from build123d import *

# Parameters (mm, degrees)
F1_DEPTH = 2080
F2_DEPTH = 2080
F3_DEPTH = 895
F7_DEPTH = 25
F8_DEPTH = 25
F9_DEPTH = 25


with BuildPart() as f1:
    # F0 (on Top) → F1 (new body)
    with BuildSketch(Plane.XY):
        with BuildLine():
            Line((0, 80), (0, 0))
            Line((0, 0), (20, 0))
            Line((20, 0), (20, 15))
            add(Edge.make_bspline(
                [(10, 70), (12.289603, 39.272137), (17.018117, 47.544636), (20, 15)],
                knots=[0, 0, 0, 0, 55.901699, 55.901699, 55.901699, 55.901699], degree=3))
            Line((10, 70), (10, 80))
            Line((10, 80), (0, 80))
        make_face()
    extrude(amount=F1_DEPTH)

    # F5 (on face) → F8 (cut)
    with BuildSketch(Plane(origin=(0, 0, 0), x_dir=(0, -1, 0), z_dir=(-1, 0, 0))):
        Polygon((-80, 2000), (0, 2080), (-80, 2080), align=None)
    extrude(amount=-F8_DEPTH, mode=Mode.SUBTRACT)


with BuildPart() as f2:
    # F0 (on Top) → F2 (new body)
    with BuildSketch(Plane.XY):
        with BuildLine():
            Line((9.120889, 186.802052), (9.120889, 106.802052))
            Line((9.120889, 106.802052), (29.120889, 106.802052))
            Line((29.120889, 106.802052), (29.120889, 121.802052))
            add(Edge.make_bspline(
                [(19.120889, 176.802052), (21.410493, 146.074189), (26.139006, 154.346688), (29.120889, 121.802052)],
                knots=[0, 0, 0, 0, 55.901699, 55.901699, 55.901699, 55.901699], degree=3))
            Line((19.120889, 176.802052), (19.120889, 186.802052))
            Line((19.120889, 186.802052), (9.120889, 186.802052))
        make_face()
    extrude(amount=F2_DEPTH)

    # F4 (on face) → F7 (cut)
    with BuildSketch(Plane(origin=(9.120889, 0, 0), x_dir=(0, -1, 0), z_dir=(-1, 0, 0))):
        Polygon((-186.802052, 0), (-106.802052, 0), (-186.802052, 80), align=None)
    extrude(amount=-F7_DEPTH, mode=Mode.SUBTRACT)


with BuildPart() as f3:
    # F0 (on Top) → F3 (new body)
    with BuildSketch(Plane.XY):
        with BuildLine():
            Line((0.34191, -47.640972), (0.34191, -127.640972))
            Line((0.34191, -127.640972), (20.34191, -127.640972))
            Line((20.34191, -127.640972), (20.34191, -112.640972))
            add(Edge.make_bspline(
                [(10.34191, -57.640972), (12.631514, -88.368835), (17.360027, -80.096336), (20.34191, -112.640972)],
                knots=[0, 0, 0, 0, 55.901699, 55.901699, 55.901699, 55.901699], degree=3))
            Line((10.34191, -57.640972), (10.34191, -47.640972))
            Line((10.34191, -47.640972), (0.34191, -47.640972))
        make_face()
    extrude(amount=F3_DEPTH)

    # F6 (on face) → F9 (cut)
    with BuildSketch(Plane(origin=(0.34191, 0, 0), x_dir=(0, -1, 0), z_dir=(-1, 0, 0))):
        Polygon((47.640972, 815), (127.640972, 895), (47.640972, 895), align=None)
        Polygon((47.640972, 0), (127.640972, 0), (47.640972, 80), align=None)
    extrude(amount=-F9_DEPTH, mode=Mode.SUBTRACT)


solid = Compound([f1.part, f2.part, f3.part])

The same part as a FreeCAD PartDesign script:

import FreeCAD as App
import Part
import Sketcher

doc = App.newDocument("Part")
body = doc.addObject("PartDesign::Body", "Body")

# Sketch on XY plane
sketch1 = doc.addObject("Sketcher::SketchObject", "Sketch")
body.addObject(sketch1)
sketch1.AttachmentSupport = (doc.XY_Plane, [""])
sketch1.MapMode = "FlatFace"
sketch1.addGeometry(Part.LineSegment(App.Vector(0, 80, 0), App.Vector(0, 0, 0)), False)
sketch1.addGeometry(Part.LineSegment(App.Vector(0, 0, 0), App.Vector(20, 0, 0)), False)
sketch1.addGeometry(Part.LineSegment(App.Vector(20, 0, 0), App.Vector(20, 15, 0)), False)
sketch1.addGeometry(Part.BSplineCurve([App.Vector(10, 70, 0), App.Vector(12.289603, 39.272137, 0), App.Vector(17.018117, 47.544636, 0), App.Vector(20, 15, 0)], [4, 4], [0, 55.901699], False, 3, [1, 1, 1, 1], False), False)
sketch1.addGeometry(Part.LineSegment(App.Vector(10, 70, 0), App.Vector(10, 80, 0)), False)
sketch1.addGeometry(Part.LineSegment(App.Vector(10, 80, 0), App.Vector(0, 80, 0)), False)
sketch1.addConstraint(Sketcher.Constraint("Block", 3))
sketch1.addConstraint(Sketcher.Constraint("Coincident", 0, 2, 1, 1))
sketch1.addConstraint(Sketcher.Constraint("Coincident", 1, 2, 2, 1))
sketch1.addConstraint(Sketcher.Constraint("Coincident", 2, 2, 3, 2))
sketch1.addConstraint(Sketcher.Constraint("Coincident", 3, 1, 4, 1))
sketch1.addConstraint(Sketcher.Constraint("Coincident", 4, 2, 5, 1))
sketch1.addConstraint(Sketcher.Constraint("Coincident", 5, 2, 0, 1))
sketch1.addConstraint(Sketcher.Constraint("Vertical", 0))
sketch1.addConstraint(Sketcher.Constraint("Horizontal", 1))
sketch1.addConstraint(Sketcher.Constraint("Vertical", 2))
sketch1.addConstraint(Sketcher.Constraint("Vertical", 4))
sketch1.addConstraint(Sketcher.Constraint("Horizontal", 5))
sketch1.addConstraint(Sketcher.Constraint("Coincident", 0, 2, -1, 1))
sketch1.addConstraint(Sketcher.Constraint("DistanceY", 0, 2, 0, 1, 80.0))
pad1 = doc.addObject("PartDesign::Pad", "Pad")
body.addObject(pad1)
pad1.Profile = sketch1
pad1.Length = 2080

# Sketch on YZ plane
sketch2 = doc.addObject("Sketcher::SketchObject", "Sketch001")
body.addObject(sketch2)
sketch2.AttachmentSupport = (doc.YZ_Plane, [""])
sketch2.MapMode = "FlatFace"
sketch2.addGeometry(Part.LineSegment(App.Vector(80, 2000, 0), App.Vector(0, 2080, 0)), False)
sketch2.addGeometry(Part.LineSegment(App.Vector(0, 2080, 0), App.Vector(80, 2080, 0)), False)
sketch2.addGeometry(Part.LineSegment(App.Vector(80, 2080, 0), App.Vector(80, 2000, 0)), False)
sketch2.addConstraint(Sketcher.Constraint("Coincident", 0, 2, 1, 1))
sketch2.addConstraint(Sketcher.Constraint("Coincident", 1, 2, 2, 1))
sketch2.addConstraint(Sketcher.Constraint("Coincident", 2, 2, 0, 1))
sketch2.addConstraint(Sketcher.Constraint("Horizontal", 1))
sketch2.addConstraint(Sketcher.Constraint("Vertical", 2))
sketch2.addConstraint(Sketcher.Constraint("PointOnObject", 0, 2, -2))
sketch2.addConstraint(Sketcher.Constraint("Equal", 1, 2))
sketch2.addConstraint(Sketcher.Constraint("DistanceX", 1, 1, 1, 2, 80.0))
sketch2.addConstraint(Sketcher.Constraint("DistanceY", -1, 1, 0, 2, 2080.0))
pocket1 = doc.addObject("PartDesign::Pocket", "Pocket")
body.addObject(pocket1)
pocket1.Profile = sketch2
pocket1.Length = 25
pocket1.Reversed = True
body2 = doc.addObject("PartDesign::Body", "Body001")

# Sketch on XY plane
sketch3 = doc.addObject("Sketcher::SketchObject", "Sketch002")
body2.addObject(sketch3)
sketch3.AttachmentSupport = (doc.getObject("XY_Plane001"), [""])
sketch3.MapMode = "FlatFace"
sketch3.addGeometry(Part.LineSegment(App.Vector(9.120889, 186.802052, 0), App.Vector(9.120889, 106.802052, 0)), False)
sketch3.addGeometry(Part.LineSegment(App.Vector(9.120889, 106.802052, 0), App.Vector(29.120889, 106.802052, 0)), False)
sketch3.addGeometry(Part.LineSegment(App.Vector(29.120889, 106.802052, 0), App.Vector(29.120889, 121.802052, 0)), False)
sketch3.addGeometry(Part.BSplineCurve([App.Vector(19.120889, 176.802052, 0), App.Vector(21.410493, 146.074189, 0), App.Vector(26.139006, 154.346688, 0), App.Vector(29.120889, 121.802052, 0)], [4, 4], [0, 55.901699], False, 3, [1, 1, 1, 1], False), False)
sketch3.addGeometry(Part.LineSegment(App.Vector(19.120889, 176.802052, 0), App.Vector(19.120889, 186.802052, 0)), False)
sketch3.addGeometry(Part.LineSegment(App.Vector(19.120889, 186.802052, 0), App.Vector(9.120889, 186.802052, 0)), False)
sketch3.addConstraint(Sketcher.Constraint("Block", 3))
sketch3.addConstraint(Sketcher.Constraint("Coincident", 0, 2, 1, 1))
sketch3.addConstraint(Sketcher.Constraint("Coincident", 1, 2, 2, 1))
sketch3.addConstraint(Sketcher.Constraint("Coincident", 2, 2, 3, 2))
sketch3.addConstraint(Sketcher.Constraint("Coincident", 3, 1, 4, 1))
sketch3.addConstraint(Sketcher.Constraint("Coincident", 4, 2, 5, 1))
sketch3.addConstraint(Sketcher.Constraint("Coincident", 5, 2, 0, 1))
sketch3.addConstraint(Sketcher.Constraint("Vertical", 0))
sketch3.addConstraint(Sketcher.Constraint("Horizontal", 1))
sketch3.addConstraint(Sketcher.Constraint("Vertical", 2))
sketch3.addConstraint(Sketcher.Constraint("Vertical", 4))
sketch3.addConstraint(Sketcher.Constraint("Horizontal", 5))
sketch3.addConstraint(Sketcher.Constraint("DistanceX", 1, 1, 1, 2, 20.0))
sketch3.addConstraint(Sketcher.Constraint("DistanceY", 0, 2, 0, 1, 80.0))
sketch3.addConstraint(Sketcher.Constraint("DistanceY", 2, 1, 2, 2, 15.0))
pad2 = doc.addObject("PartDesign::Pad", "Pad001")
body2.addObject(pad2)
pad2.Profile = sketch3
pad2.Length = 2080

# Sketch on YZ plane
sketch4 = doc.addObject("Sketcher::SketchObject", "Sketch003")
body2.addObject(sketch4)
sketch4.AttachmentSupport = (doc.getObject("YZ_Plane001"), [""])
sketch4.MapMode = "FlatFace"
sketch4.AttachmentOffset = App.Placement(App.Vector(0, 0, 9.120889), App.Rotation())
sketch4.addGeometry(Part.LineSegment(App.Vector(186.802052, 0, 0), App.Vector(106.802052, 0, 0)), False)
sketch4.addGeometry(Part.LineSegment(App.Vector(106.802052, 0, 0), App.Vector(186.802052, 80, 0)), False)
sketch4.addGeometry(Part.LineSegment(App.Vector(186.802052, 80, 0), App.Vector(186.802052, 0, 0)), False)
sketch4.addConstraint(Sketcher.Constraint("Coincident", 0, 2, 1, 1))
sketch4.addConstraint(Sketcher.Constraint("Coincident", 1, 2, 2, 1))
sketch4.addConstraint(Sketcher.Constraint("Coincident", 2, 2, 0, 1))
sketch4.addConstraint(Sketcher.Constraint("Horizontal", 0))
sketch4.addConstraint(Sketcher.Constraint("Vertical", 2))
sketch4.addConstraint(Sketcher.Constraint("PointOnObject", 0, 2, -1))
sketch4.addConstraint(Sketcher.Constraint("Equal", 0, 2))
sketch4.addConstraint(Sketcher.Constraint("DistanceX", 0, 2, 0, 1, 80.0))
sketch4.addConstraint(Sketcher.Constraint("DistanceX", -1, 1, 1, 2, 186.802052))
pocket2 = doc.addObject("PartDesign::Pocket", "Pocket001")
body2.addObject(pocket2)
pocket2.Profile = sketch4
pocket2.Length = 25
pocket2.Reversed = True
body3 = doc.addObject("PartDesign::Body", "Body002")

# Sketch on XY plane
sketch5 = doc.addObject("Sketcher::SketchObject", "Sketch004")
body3.addObject(sketch5)
sketch5.AttachmentSupport = (doc.getObject("XY_Plane002"), [""])
sketch5.MapMode = "FlatFace"
sketch5.addGeometry(Part.LineSegment(App.Vector(0.34191, -47.640972, 0), App.Vector(0.34191, -127.640972, 0)), False)
sketch5.addGeometry(Part.LineSegment(App.Vector(0.34191, -127.640972, 0), App.Vector(20.34191, -127.640972, 0)), False)
sketch5.addGeometry(Part.LineSegment(App.Vector(20.34191, -127.640972, 0), App.Vector(20.34191, -112.640972, 0)), False)
sketch5.addGeometry(Part.BSplineCurve([App.Vector(10.34191, -57.640972, 0), App.Vector(12.631514, -88.368835, 0), App.Vector(17.360027, -80.096336, 0), App.Vector(20.34191, -112.640972, 0)], [4, 4], [0, 55.901699], False, 3, [1, 1, 1, 1], False), False)
sketch5.addGeometry(Part.LineSegment(App.Vector(10.34191, -57.640972, 0), App.Vector(10.34191, -47.640972, 0)), False)
sketch5.addGeometry(Part.LineSegment(App.Vector(10.34191, -47.640972, 0), App.Vector(0.34191, -47.640972, 0)), False)
sketch5.addConstraint(Sketcher.Constraint("Block", 3))
sketch5.addConstraint(Sketcher.Constraint("Coincident", 0, 2, 1, 1))
sketch5.addConstraint(Sketcher.Constraint("Coincident", 1, 2, 2, 1))
sketch5.addConstraint(Sketcher.Constraint("Coincident", 2, 2, 3, 2))
sketch5.addConstraint(Sketcher.Constraint("Coincident", 3, 1, 4, 1))
sketch5.addConstraint(Sketcher.Constraint("Coincident", 4, 2, 5, 1))
sketch5.addConstraint(Sketcher.Constraint("Coincident", 5, 2, 0, 1))
sketch5.addConstraint(Sketcher.Constraint("Vertical", 0))
sketch5.addConstraint(Sketcher.Constraint("Horizontal", 1))
sketch5.addConstraint(Sketcher.Constraint("Vertical", 2))
sketch5.addConstraint(Sketcher.Constraint("Vertical", 4))
sketch5.addConstraint(Sketcher.Constraint("Horizontal", 5))
sketch5.addConstraint(Sketcher.Constraint("DistanceX", 1, 1, 1, 2, 20.0))
sketch5.addConstraint(Sketcher.Constraint("DistanceY", 0, 2, 0, 1, 80.0))
sketch5.addConstraint(Sketcher.Constraint("DistanceY", 2, 1, 2, 2, 15.0))
pad3 = doc.addObject("PartDesign::Pad", "Pad002")
body3.addObject(pad3)
pad3.Profile = sketch5
pad3.Length = 895

# Sketch on YZ plane
sketch6 = doc.addObject("Sketcher::SketchObject", "Sketch005")
body3.addObject(sketch6)
sketch6.AttachmentSupport = (doc.getObject("YZ_Plane002"), [""])
sketch6.MapMode = "FlatFace"
sketch6.AttachmentOffset = App.Placement(App.Vector(0, 0, 0.34191), App.Rotation())
sketch6.addGeometry(Part.LineSegment(App.Vector(-47.640972, 815, 0), App.Vector(-127.640972, 895, 0)), False)
sketch6.addGeometry(Part.LineSegment(App.Vector(-127.640972, 895, 0), App.Vector(-47.640972, 895, 0)), False)
sketch6.addGeometry(Part.LineSegment(App.Vector(-47.640972, 895, 0), App.Vector(-47.640972, 815, 0)), False)
sketch6.addGeometry(Part.LineSegment(App.Vector(-47.640972, 0, 0), App.Vector(-127.640972, 0, 0)), False)
sketch6.addGeometry(Part.LineSegment(App.Vector(-127.640972, 0, 0), App.Vector(-47.640972, 80, 0)), False)
sketch6.addGeometry(Part.LineSegment(App.Vector(-47.640972, 80, 0), App.Vector(-47.640972, 0, 0)), False)
sketch6.addConstraint(Sketcher.Constraint("Coincident", 0, 2, 1, 1))
sketch6.addConstraint(Sketcher.Constraint("Coincident", 1, 2, 2, 1))
sketch6.addConstraint(Sketcher.Constraint("Coincident", 2, 2, 0, 1))
sketch6.addConstraint(Sketcher.Constraint("Coincident", 3, 2, 4, 1))
sketch6.addConstraint(Sketcher.Constraint("Coincident", 4, 2, 5, 1))
sketch6.addConstraint(Sketcher.Constraint("Coincident", 5, 2, 3, 1))
sketch6.addConstraint(Sketcher.Constraint("Horizontal", 1))
sketch6.addConstraint(Sketcher.Constraint("Vertical", 2))
sketch6.addConstraint(Sketcher.Constraint("Horizontal", 3))
sketch6.addConstraint(Sketcher.Constraint("Vertical", 5))
sketch6.addConstraint(Sketcher.Constraint("PointOnObject", 3, 2, -1))
sketch6.addConstraint(Sketcher.Constraint("Perpendicular", 0, 4))
sketch6.addConstraint(Sketcher.Constraint("Vertical", 0, 2, 3, 2))
sketch6.addConstraint(Sketcher.Constraint("Vertical", 2, 2, 4, 2))
sketch6.addConstraint(Sketcher.Constraint("Equal", 3, 2))
sketch6.addConstraint(Sketcher.Constraint("DistanceX", 1, 1, 1, 2, 80.0))
sketch6.addConstraint(Sketcher.Constraint("DistanceY", -1, 1, 0, 2, 895.0))
sketch6.addConstraint(Sketcher.Constraint("DistanceX", 1, 2, -1, 1, 47.640972))
pocket3 = doc.addObject("PartDesign::Pocket", "Pocket002")
body3.addObject(pocket3)
pocket3.Profile = sketch6
pocket3.Length = 25
pocket3.Reversed = True

doc.recompute()
